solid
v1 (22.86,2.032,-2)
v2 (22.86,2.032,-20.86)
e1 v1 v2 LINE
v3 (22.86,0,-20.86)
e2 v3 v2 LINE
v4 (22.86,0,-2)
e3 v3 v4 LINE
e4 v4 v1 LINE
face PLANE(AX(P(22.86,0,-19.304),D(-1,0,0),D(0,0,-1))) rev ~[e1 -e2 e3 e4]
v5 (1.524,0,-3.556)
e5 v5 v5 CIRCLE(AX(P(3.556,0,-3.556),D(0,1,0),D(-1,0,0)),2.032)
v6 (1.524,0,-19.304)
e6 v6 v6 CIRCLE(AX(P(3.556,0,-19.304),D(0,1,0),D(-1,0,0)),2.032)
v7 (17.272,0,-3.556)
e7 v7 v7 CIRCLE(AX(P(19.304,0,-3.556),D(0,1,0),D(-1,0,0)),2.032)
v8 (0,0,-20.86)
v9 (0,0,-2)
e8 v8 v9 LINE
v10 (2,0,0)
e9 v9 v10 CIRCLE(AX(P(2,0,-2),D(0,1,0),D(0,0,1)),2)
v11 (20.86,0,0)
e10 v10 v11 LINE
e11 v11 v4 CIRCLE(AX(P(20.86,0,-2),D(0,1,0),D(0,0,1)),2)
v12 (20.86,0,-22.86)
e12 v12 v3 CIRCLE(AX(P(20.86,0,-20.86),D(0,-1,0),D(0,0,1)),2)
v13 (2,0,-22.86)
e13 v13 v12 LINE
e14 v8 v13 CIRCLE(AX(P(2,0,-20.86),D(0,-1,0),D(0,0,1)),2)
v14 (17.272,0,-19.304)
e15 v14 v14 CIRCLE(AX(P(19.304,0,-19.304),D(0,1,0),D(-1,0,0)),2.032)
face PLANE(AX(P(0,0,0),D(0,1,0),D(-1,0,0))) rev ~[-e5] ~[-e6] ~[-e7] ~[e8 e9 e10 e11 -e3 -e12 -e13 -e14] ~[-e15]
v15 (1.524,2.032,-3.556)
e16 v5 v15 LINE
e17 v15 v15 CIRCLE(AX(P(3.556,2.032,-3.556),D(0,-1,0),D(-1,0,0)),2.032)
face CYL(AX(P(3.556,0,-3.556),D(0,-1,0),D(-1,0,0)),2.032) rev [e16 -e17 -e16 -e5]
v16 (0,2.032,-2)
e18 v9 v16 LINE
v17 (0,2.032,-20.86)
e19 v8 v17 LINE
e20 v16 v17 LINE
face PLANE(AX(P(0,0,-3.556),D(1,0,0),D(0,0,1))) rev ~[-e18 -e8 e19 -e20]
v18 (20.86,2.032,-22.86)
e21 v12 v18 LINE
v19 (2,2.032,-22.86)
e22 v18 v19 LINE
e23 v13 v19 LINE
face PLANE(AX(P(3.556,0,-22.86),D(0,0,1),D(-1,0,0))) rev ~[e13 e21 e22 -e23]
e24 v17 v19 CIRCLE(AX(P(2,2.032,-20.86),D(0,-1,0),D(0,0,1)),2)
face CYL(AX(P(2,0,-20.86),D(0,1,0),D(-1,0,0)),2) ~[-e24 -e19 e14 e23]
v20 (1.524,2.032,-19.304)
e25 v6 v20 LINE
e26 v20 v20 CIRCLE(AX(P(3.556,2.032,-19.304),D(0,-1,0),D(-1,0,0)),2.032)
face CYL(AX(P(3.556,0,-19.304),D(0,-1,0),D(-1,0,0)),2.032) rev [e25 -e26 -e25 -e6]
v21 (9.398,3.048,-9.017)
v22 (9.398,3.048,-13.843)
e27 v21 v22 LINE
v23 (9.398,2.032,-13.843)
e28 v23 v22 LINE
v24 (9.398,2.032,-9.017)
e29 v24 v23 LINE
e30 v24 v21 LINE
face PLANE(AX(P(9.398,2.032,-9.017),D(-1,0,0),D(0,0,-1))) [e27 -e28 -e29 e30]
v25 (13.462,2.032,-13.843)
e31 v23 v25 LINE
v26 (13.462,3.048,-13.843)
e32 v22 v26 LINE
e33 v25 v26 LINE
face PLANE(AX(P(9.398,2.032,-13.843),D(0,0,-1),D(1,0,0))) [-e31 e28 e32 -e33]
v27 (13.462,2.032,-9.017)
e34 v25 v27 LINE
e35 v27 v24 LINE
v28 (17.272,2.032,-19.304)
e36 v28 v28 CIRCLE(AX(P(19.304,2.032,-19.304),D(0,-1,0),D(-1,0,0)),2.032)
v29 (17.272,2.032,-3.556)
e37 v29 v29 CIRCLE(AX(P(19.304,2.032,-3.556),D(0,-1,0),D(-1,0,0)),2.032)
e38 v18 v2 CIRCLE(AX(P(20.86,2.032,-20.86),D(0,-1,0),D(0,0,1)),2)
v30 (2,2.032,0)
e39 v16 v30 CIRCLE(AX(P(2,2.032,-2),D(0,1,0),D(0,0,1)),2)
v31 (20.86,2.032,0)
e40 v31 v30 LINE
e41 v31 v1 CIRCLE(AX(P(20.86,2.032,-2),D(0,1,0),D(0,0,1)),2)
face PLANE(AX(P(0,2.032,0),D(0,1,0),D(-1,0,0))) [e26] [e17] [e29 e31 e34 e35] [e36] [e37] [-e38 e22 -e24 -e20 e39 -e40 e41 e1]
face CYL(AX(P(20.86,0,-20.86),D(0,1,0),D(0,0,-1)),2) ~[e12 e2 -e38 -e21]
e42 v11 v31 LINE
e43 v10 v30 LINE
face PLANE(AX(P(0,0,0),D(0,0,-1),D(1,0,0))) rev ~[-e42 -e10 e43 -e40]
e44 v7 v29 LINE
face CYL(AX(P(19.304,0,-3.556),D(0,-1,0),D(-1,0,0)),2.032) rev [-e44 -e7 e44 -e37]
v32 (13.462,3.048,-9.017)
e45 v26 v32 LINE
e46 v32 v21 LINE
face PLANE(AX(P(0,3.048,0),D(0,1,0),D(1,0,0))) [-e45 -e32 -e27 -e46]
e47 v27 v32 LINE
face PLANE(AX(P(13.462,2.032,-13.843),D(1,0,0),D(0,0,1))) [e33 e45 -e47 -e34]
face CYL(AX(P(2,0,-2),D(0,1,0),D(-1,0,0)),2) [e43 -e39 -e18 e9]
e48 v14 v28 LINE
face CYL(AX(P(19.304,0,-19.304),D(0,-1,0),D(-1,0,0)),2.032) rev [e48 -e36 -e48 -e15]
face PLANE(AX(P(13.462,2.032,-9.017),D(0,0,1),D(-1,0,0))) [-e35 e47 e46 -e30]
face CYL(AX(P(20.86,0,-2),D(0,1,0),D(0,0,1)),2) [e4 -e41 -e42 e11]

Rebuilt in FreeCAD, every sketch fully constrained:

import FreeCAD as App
import Part
import Sketcher
from FreeCAD import Vector
Q = App.Units.Quantity


def edges_at(feature, points):
    """Names of the edges that pass closest to the given points."""
    edges = feature.Shape.Edges
    near = lambda p: min(range(len(edges)), key=lambda i: edges[i].distToShape(Part.Vertex(*p))[0])
    return sorted({f"Edge{near(p) + 1}" for p in points})


def add_polygon(sketch, points):
    """Adds a closed chain of lines whose ends are joined by coincident constraints."""
    first, n = sketch.GeometryCount, len(points)
    for a, b in zip(points, points[1:] + points[:1]):
        sketch.addGeometry(Part.LineSegment(App.Vector(*a, 0), App.Vector(*b, 0)), False)
    for i in range(n):
        sketch.addConstraint(Sketcher.Constraint("Coincident", first + i, 2, first + (i + 1) % n, 1))

doc = App.newDocument("Part")
body = doc.addObject("PartDesign::Body", "Body")

# Sketch on XZ plane
sketch1 = body.newObject("Sketcher::SketchObject", "Sketch")
sketch1.AttachmentSupport = (doc.getObject("XZ_Plane"), [""])
sketch1.MapMode = "FlatFace"
add_polygon(sketch1, [(0, 0), (22.86, 0), (22.86, -22.86), (0, -22.86)])  # lines 0-3
sketch1.addGeometry(Part.Circle(Vector(3.556, -19.304, 0), Vector(0, 0, 1), 2.032), False)  # 4
sketch1.addGeometry(Part.Circle(Vector(3.556, -3.556, 0), Vector(0, 0, 1), 2.032), False)  # 5
sketch1.addGeometry(Part.Circle(Vector(19.304, -3.556, 0), Vector(0, 0, 1), 2.032), False)  # 6
sketch1.addGeometry(Part.Circle(Vector(19.304, -19.304, 0), Vector(0, 0, 1), 2.032), False)  # 7
sketch1.addConstraint(Sketcher.Constraint("Horizontal", 0))
sketch1.addConstraint(Sketcher.Constraint("Vertical", 1))
sketch1.addConstraint(Sketcher.Constraint("Horizontal", 2))
sketch1.addConstraint(Sketcher.Constraint("Vertical", 3))
sketch1.addConstraint(Sketcher.Constraint("Coincident", 3, 2, -1, 1))
sketch1.addConstraint(Sketcher.Constraint("Equal", 4, 5))
sketch1.addConstraint(Sketcher.Constraint("Equal", 5, 6))
sketch1.addConstraint(Sketcher.Constraint("Equal", 6, 7))
sketch1.addConstraint(Sketcher.Constraint("Horizontal", 5, 3, 6, 3))
sketch1.addConstraint(Sketcher.Constraint("Horizontal", 4, 3, 7, 3))
sketch1.addConstraint(Sketcher.Constraint("Vertical", 4, 3, 5, 3))
sketch1.addConstraint(Sketcher.Constraint("Vertical", 6, 3, 7, 3))
sketch1.addConstraint(Sketcher.Constraint("Equal", 2, 1))
sketch1.addConstraint(Sketcher.Constraint("Diameter", 4, Q("0.16 in")))
sketch1.addConstraint(Sketcher.Constraint("DistanceX", 0, 1, 0, 2, Q("0.9 in")))
sketch1.addConstraint(Sketcher.Constraint("DistanceX", -1, 1, 4, 3, Q("0.14 in")))
sketch1.addConstraint(Sketcher.Constraint("DistanceY", 5, 3, -1, 1, Q("0.14 in")))
sketch1.addConstraint(Sketcher.Constraint("DistanceX", 6, 3, 0, 2, Q("0.14 in")))
sketch1.addConstraint(Sketcher.Constraint("DistanceY", 1, 2, 7, 3, Q("0.14 in")))
pad1 = body.newObject("PartDesign::Pad", "Pad")
pad1.Profile = sketch1
pad1.Length = Q("0.08 in")
pad1.Reversed = True
doc.recompute()

fillet = body.newObject("PartDesign::Fillet", "Fillet")
fillet.Base = (pad1, edges_at(pad1, [
    (0, 1.016, 0),
    (22.86, 1.016, 0),
    (22.86, 1.016, -22.86),
    (0, 1.016, -22.86),
]))
fillet.Radius = 2

# Sketch on XZ plane
sketch2 = body.newObject("Sketcher::SketchObject", "Sketch001")
sketch2.AttachmentSupport = (doc.getObject("XZ_Plane"), [""])
sketch2.MapMode = "FlatFace"
sketch2.AttachmentOffset = App.Placement(Vector(0, 0, -0.08 * 25.4), App.Rotation())
add_polygon(sketch2, [(13.462, -13.843), (9.398, -13.843), (9.398, -9.017), (13.462, -9.017)])  # lines 0-3
sketch2.addConstraint(Sketcher.Constraint("Horizontal", 0))
sketch2.addConstraint(Sketcher.Constraint("Vertical", 1))
sketch2.addConstraint(Sketcher.Constraint("Horizontal", 2))
sketch2.addConstraint(Sketcher.Constraint("Vertical", 3))
sketch2.addConstraint(Sketcher.Constraint("DistanceX", 0, 2, 0, 1, Q("0.16 in")))
sketch2.addConstraint(Sketcher.Constraint("DistanceY", 1, 1, 1, 2, Q("0.19 in")))
sketch2.addConstraint(Sketcher.Constraint("DistanceX", -1, 1, 0, 2, Q("0.37 in")))
sketch2.addConstraint(Sketcher.Constraint("DistanceY", 0, 2, -1, 1, Q("0.545 in")))
pad2 = body.newObject("PartDesign::Pad", "Pad001")
pad2.Profile = sketch2
pad2.Length = Q("0.04 in")
pad2.Reversed = True

doc.recompute()
